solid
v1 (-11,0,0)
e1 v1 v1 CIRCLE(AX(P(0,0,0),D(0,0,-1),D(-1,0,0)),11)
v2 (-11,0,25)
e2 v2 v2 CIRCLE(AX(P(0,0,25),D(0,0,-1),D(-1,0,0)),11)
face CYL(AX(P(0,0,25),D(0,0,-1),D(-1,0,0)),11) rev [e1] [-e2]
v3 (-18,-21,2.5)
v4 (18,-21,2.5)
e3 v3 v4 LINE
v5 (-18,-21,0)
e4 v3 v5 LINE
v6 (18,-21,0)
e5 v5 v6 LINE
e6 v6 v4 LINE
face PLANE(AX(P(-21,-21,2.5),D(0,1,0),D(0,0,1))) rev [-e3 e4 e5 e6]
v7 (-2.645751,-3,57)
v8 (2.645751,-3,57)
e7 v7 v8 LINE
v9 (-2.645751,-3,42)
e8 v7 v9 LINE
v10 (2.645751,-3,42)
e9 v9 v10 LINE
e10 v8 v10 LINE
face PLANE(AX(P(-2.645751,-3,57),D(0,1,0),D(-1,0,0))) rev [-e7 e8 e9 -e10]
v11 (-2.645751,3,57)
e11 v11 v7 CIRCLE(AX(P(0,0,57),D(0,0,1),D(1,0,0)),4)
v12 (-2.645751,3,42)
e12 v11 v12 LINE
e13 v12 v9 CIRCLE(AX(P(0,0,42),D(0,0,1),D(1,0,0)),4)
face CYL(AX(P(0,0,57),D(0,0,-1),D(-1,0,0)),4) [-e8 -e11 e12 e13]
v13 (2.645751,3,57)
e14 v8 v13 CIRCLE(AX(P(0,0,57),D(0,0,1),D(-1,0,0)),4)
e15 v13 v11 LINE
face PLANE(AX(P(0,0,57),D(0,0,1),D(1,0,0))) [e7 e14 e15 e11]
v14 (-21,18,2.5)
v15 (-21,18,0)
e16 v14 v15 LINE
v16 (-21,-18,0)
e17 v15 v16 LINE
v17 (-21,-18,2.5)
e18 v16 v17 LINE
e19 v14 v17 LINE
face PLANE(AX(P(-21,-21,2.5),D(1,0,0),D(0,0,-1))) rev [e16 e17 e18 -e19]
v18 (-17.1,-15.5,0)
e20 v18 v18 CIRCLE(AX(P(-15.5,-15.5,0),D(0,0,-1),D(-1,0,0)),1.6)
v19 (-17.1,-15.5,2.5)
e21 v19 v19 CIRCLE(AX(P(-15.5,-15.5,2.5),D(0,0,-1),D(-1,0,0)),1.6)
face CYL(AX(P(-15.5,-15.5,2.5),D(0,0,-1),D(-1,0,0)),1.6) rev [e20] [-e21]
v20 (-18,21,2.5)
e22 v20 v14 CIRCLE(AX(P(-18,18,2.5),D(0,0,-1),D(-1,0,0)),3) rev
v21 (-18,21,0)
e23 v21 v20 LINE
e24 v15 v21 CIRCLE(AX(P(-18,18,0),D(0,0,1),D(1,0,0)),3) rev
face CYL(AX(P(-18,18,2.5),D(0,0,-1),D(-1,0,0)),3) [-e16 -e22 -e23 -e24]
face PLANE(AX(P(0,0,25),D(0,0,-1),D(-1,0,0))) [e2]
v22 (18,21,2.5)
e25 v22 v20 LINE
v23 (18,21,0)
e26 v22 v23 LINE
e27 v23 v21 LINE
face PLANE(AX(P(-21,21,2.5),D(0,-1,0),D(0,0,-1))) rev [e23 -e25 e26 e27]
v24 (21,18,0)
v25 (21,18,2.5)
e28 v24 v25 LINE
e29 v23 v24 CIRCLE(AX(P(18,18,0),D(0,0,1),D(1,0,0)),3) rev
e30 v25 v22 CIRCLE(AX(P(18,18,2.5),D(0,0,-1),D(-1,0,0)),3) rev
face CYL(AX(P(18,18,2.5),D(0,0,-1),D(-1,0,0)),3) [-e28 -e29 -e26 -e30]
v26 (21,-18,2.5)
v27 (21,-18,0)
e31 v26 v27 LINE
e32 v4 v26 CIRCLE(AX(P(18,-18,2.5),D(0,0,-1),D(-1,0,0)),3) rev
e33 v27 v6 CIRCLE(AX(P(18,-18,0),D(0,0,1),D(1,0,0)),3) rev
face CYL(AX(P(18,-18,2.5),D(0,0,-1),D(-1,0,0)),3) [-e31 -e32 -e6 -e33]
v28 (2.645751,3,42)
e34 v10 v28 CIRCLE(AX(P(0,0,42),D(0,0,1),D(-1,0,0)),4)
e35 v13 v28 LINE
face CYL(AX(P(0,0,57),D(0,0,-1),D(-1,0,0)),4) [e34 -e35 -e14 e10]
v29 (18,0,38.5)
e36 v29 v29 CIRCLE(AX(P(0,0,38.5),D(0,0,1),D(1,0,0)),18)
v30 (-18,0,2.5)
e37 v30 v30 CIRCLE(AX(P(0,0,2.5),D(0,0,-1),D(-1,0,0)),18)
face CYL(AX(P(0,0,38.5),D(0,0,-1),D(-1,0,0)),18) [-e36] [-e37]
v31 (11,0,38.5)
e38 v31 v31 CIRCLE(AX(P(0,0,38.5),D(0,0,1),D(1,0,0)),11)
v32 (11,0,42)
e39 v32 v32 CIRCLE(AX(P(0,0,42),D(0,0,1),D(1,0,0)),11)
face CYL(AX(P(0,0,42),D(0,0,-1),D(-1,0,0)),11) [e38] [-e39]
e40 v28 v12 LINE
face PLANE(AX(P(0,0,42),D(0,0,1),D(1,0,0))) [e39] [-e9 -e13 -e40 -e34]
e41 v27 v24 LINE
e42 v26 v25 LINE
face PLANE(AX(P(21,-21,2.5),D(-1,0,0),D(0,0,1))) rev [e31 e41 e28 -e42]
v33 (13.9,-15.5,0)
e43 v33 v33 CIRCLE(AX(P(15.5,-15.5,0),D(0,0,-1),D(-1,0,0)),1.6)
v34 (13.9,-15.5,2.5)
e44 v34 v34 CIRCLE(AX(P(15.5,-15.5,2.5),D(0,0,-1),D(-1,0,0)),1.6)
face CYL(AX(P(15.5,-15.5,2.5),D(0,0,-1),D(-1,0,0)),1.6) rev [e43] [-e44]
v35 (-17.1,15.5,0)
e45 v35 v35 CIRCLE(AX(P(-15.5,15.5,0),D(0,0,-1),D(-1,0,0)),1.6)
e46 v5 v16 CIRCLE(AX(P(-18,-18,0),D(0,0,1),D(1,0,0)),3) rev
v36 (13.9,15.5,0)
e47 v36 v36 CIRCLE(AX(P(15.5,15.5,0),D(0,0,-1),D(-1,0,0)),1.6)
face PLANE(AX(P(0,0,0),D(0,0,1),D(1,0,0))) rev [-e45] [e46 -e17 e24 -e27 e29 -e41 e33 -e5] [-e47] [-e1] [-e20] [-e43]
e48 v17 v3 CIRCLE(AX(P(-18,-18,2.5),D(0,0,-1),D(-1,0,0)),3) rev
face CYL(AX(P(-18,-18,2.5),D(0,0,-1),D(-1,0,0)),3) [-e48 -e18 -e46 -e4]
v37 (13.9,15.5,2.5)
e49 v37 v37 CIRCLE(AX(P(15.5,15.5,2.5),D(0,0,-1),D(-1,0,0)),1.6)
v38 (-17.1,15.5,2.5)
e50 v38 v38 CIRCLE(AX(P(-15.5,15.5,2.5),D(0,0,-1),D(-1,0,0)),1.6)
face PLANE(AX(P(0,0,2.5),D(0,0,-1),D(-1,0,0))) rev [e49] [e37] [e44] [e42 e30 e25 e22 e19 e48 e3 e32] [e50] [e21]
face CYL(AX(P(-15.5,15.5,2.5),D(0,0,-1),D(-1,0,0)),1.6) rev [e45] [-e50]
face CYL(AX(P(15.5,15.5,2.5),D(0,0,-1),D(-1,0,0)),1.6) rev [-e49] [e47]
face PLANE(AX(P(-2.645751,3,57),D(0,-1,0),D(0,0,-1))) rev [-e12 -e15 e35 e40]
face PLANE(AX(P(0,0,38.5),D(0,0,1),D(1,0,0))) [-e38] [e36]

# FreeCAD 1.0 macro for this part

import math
import FreeCAD as App
import Part
import Sketcher

V = App.Vector
Q = App.Units.Quantity


def edges_at(feature, points):
    """Names of the edges that pass closest to the given points."""
    edges = feature.Shape.Edges
    near = lambda p: min(range(len(edges)), key=lambda i: edges[i].distToShape(Part.Vertex(*p))[0])
    return sorted({f"Edge{near(p) + 1}" for p in points})

doc = App.newDocument("Part")
body = doc.addObject("PartDesign::Body", "Body")

sketch1 = doc.addObject("Sketcher::SketchObject", "Sketch")
body.addObject(sketch1)
sketch1.AttachmentSupport = (doc.XY_Plane, [""])
sketch1.MapMode = "FlatFace"
sketch1.addGeometry(Part.Circle(V(0, 0, 0), V(0, 0, 1), 18), False)
sketch1.addConstraint([
    Sketcher.Constraint("Coincident", 0, 3, -1, 1),
    Sketcher.Constraint("Diameter", 0, Q("36 mm")),
])
pad1 = doc.addObject("PartDesign::Pad", "Pad")
body.addObject(pad1)
pad1.Profile = sketch1
pad1.Length = 38.5

sketch2 = doc.addObject("Sketcher::SketchObject", "Sketch001")
body.addObject(sketch2)
sketch2.AttachmentSupport = (doc.XY_Plane, [""])
sketch2.MapMode = "FlatFace"
sketch2.addGeometry([
    Part.LineSegment(V(-21, 21, 0), V(-21, -21, 0)),
    Part.LineSegment(V(-21, -21, 0), V(21, -21, 0)),
    Part.LineSegment(V(21, -21, 0), V(21, 21, 0)),
    Part.LineSegment(V(21, 21, 0), V(-21, 21, 0)),
    Part.Circle(V(0, 0, 0), V(0, 0, 1), 18),
], False)
sketch2.addConstraint([
    Sketcher.Constraint("Coincident", 0, 2, 1, 1),
    Sketcher.Constraint("Coincident", 1, 2, 2, 1),
    Sketcher.Constraint("Coincident", 2, 2, 3, 1),
    Sketcher.Constraint("Coincident", 3, 2, 0, 1),
    Sketcher.Constraint("Vertical", 0),
    Sketcher.Constraint("Horizontal", 1),
    Sketcher.Constraint("Vertical", 2),
    Sketcher.Constraint("Horizontal", 3),
    Sketcher.Constraint("Coincident", 4, 3, -1, 1),
    Sketcher.Constraint("Symmetric", 0, 2, 2, 2, -1, 1),
    Sketcher.Constraint("Equal", 3, 0),
    Sketcher.Constraint("Diameter", 4, Q("36 mm")),
    Sketcher.Constraint("DistanceX", 1, 1, 1, 2, Q("42 mm")),
])
pad2 = doc.addObject("PartDesign::Pad", "Pad001")
body.addObject(pad2)
pad2.Profile = sketch2
pad2.Length = 2.5
doc.recompute()

fillet = doc.addObject("PartDesign::Fillet", "Fillet")
body.addObject(fillet)
fillet.Base = (pad2, edges_at(pad2, [
    (21, -21, 1.25),
    (21, 21, 1.25),
    (-21, 21, 1.25),
    (-21, -21, 1.25),
]))
fillet.Radius = 3

sketch3 = doc.addObject("Sketcher::SketchObject", "Sketch002")
body.addObject(sketch3)
sketch3.AttachmentSupport = (doc.XY_Plane, [""])
sketch3.MapMode = "FlatFace"
sketch3.addGeometry([
    Part.Circle(V(15.5, 15.5, 0), V(0, 0, 1), 1.6),
    Part.Circle(V(15.5, -15.5, 0), V(0, 0, 1), 1.6),
    Part.Circle(V(-15.5, -15.5, 0), V(0, 0, 1), 1.6),
    Part.Circle(V(-15.5, 15.5, 0), V(0, 0, 1), 1.6),
], False)
sketch3.addConstraint([
    Sketcher.Constraint("Equal", 0, 1),
    Sketcher.Constraint("Equal", 1, 2),
    Sketcher.Constraint("Equal", 2, 3),
    Sketcher.Constraint("Symmetric", 0, 3, 2, 3, -1, 1),
    Sketcher.Constraint("Symmetric", 1, 3, 3, 3, -1, 1),
    Sketcher.Constraint("Symmetric", 1, 3, 2, 3, -2),
    Sketcher.Constraint("Diameter", 0, Q("3.2 mm")),
    Sketcher.Constraint("DistanceY", 1, 3, 0, 3, Q("31 mm")),
    Sketcher.Constraint("DistanceX", 2, 3, 1, 3, Q("31 mm")),
])
pocket1 = doc.addObject("PartDesign::Pocket", "Pocket")
body.addObject(pocket1)
pocket1.Profile = sketch3
pocket1.Length = 2.5
pocket1.Reversed = True

sketch4 = doc.addObject("Sketcher::SketchObject", "Sketch003")
body.addObject(sketch4)
sketch4.AttachmentSupport = (doc.XY_Plane, [""])
sketch4.MapMode = "FlatFace"
sketch4.AttachmentOffset = App.Placement(V(0, 0, 38.5), App.Rotation())
sketch4.addGeometry(Part.Circle(V(0, 0, 0), V(0, 0, 1), 11), False)
sketch4.addConstraint([
    Sketcher.Constraint("Coincident", 0, 3, -1, 1),
    Sketcher.Constraint("Diameter", 0, Q("22 mm")),
])
pad3 = doc.addObject("PartDesign::Pad", "Pad002")
body.addObject(pad3)
pad3.Profile = sketch4
pad3.Length = 3.5

sketch5 = doc.addObject("Sketcher::SketchObject", "Sketch004")
body.addObject(sketch5)
sketch5.AttachmentSupport = (doc.XY_Plane, [""])
sketch5.MapMode = "FlatFace"
sketch5.AttachmentOffset = App.Placement(V(0, 0, 42), App.Rotation())
sketch5.addGeometry([
    Part.LineSegment(V(-2.6, -3, 0), V(2.6, -3, 0)),
    Part.ArcOfCircle(Part.Circle(V(0, 0, 0), V(0, 0, 1), 4), math.radians(-49), math.radians(49)),
    Part.LineSegment(V(2.6, 3, 0), V(-2.6, 3, 0)),
    Part.ArcOfCircle(Part.Circle(V(0, 0, 0), V(0, 0, 1), 4), math.radians(131), math.radians(229)),
], False)
sketch5.addConstraint([
    Sketcher.Constraint("Coincident", 0, 2, 1, 1),
    Sketcher.Constraint("Coincident", 1, 2, 2, 1),
    Sketcher.Constraint("Coincident", 2, 2, 3, 1),
    Sketcher.Constraint("Coincident", 3, 2, 0, 1),
    Sketcher.Constraint("Horizontal", 0),
    Sketcher.Constraint("Horizontal", 2),
    Sketcher.Constraint("Coincident", 1, 3, -1, 1),
    Sketcher.Constraint("Coincident", 3, 3, -1, 1),
    Sketcher.Constraint("Equal", 1, 3),
    Sketcher.Constraint("Vertical", 0, 2, 1, 2),
    Sketcher.Constraint("Radius", 1, Q("4 mm")),
    Sketcher.Constraint("DistanceY", 0, 2, -1, 1, Q("3 mm")),
])
pad4 = doc.addObject("PartDesign::Pad", "Pad003")
body.addObject(pad4)
pad4.Profile = sketch5
pad4.Length = 15

sketch6 = doc.addObject("Sketcher::SketchObject", "Sketch005")
body.addObject(sketch6)
sketch6.AttachmentSupport = (doc.XY_Plane, [""])
sketch6.MapMode = "FlatFace"
sketch6.addGeometry(Part.Circle(V(0, 0, 0), V(0, 0, 1), 11), False)
sketch6.addConstraint([
    Sketcher.Constraint("Coincident", 0, 3, -1, 1),
    Sketcher.Constraint("Diameter", 0, Q("22 mm")),
])
pocket2 = doc.addObject("PartDesign::Pocket", "Pocket001")
body.addObject(pocket2)
pocket2.Profile = sketch6
pocket2.Length = 25
pocket2.Reversed = True

doc.recompute()
